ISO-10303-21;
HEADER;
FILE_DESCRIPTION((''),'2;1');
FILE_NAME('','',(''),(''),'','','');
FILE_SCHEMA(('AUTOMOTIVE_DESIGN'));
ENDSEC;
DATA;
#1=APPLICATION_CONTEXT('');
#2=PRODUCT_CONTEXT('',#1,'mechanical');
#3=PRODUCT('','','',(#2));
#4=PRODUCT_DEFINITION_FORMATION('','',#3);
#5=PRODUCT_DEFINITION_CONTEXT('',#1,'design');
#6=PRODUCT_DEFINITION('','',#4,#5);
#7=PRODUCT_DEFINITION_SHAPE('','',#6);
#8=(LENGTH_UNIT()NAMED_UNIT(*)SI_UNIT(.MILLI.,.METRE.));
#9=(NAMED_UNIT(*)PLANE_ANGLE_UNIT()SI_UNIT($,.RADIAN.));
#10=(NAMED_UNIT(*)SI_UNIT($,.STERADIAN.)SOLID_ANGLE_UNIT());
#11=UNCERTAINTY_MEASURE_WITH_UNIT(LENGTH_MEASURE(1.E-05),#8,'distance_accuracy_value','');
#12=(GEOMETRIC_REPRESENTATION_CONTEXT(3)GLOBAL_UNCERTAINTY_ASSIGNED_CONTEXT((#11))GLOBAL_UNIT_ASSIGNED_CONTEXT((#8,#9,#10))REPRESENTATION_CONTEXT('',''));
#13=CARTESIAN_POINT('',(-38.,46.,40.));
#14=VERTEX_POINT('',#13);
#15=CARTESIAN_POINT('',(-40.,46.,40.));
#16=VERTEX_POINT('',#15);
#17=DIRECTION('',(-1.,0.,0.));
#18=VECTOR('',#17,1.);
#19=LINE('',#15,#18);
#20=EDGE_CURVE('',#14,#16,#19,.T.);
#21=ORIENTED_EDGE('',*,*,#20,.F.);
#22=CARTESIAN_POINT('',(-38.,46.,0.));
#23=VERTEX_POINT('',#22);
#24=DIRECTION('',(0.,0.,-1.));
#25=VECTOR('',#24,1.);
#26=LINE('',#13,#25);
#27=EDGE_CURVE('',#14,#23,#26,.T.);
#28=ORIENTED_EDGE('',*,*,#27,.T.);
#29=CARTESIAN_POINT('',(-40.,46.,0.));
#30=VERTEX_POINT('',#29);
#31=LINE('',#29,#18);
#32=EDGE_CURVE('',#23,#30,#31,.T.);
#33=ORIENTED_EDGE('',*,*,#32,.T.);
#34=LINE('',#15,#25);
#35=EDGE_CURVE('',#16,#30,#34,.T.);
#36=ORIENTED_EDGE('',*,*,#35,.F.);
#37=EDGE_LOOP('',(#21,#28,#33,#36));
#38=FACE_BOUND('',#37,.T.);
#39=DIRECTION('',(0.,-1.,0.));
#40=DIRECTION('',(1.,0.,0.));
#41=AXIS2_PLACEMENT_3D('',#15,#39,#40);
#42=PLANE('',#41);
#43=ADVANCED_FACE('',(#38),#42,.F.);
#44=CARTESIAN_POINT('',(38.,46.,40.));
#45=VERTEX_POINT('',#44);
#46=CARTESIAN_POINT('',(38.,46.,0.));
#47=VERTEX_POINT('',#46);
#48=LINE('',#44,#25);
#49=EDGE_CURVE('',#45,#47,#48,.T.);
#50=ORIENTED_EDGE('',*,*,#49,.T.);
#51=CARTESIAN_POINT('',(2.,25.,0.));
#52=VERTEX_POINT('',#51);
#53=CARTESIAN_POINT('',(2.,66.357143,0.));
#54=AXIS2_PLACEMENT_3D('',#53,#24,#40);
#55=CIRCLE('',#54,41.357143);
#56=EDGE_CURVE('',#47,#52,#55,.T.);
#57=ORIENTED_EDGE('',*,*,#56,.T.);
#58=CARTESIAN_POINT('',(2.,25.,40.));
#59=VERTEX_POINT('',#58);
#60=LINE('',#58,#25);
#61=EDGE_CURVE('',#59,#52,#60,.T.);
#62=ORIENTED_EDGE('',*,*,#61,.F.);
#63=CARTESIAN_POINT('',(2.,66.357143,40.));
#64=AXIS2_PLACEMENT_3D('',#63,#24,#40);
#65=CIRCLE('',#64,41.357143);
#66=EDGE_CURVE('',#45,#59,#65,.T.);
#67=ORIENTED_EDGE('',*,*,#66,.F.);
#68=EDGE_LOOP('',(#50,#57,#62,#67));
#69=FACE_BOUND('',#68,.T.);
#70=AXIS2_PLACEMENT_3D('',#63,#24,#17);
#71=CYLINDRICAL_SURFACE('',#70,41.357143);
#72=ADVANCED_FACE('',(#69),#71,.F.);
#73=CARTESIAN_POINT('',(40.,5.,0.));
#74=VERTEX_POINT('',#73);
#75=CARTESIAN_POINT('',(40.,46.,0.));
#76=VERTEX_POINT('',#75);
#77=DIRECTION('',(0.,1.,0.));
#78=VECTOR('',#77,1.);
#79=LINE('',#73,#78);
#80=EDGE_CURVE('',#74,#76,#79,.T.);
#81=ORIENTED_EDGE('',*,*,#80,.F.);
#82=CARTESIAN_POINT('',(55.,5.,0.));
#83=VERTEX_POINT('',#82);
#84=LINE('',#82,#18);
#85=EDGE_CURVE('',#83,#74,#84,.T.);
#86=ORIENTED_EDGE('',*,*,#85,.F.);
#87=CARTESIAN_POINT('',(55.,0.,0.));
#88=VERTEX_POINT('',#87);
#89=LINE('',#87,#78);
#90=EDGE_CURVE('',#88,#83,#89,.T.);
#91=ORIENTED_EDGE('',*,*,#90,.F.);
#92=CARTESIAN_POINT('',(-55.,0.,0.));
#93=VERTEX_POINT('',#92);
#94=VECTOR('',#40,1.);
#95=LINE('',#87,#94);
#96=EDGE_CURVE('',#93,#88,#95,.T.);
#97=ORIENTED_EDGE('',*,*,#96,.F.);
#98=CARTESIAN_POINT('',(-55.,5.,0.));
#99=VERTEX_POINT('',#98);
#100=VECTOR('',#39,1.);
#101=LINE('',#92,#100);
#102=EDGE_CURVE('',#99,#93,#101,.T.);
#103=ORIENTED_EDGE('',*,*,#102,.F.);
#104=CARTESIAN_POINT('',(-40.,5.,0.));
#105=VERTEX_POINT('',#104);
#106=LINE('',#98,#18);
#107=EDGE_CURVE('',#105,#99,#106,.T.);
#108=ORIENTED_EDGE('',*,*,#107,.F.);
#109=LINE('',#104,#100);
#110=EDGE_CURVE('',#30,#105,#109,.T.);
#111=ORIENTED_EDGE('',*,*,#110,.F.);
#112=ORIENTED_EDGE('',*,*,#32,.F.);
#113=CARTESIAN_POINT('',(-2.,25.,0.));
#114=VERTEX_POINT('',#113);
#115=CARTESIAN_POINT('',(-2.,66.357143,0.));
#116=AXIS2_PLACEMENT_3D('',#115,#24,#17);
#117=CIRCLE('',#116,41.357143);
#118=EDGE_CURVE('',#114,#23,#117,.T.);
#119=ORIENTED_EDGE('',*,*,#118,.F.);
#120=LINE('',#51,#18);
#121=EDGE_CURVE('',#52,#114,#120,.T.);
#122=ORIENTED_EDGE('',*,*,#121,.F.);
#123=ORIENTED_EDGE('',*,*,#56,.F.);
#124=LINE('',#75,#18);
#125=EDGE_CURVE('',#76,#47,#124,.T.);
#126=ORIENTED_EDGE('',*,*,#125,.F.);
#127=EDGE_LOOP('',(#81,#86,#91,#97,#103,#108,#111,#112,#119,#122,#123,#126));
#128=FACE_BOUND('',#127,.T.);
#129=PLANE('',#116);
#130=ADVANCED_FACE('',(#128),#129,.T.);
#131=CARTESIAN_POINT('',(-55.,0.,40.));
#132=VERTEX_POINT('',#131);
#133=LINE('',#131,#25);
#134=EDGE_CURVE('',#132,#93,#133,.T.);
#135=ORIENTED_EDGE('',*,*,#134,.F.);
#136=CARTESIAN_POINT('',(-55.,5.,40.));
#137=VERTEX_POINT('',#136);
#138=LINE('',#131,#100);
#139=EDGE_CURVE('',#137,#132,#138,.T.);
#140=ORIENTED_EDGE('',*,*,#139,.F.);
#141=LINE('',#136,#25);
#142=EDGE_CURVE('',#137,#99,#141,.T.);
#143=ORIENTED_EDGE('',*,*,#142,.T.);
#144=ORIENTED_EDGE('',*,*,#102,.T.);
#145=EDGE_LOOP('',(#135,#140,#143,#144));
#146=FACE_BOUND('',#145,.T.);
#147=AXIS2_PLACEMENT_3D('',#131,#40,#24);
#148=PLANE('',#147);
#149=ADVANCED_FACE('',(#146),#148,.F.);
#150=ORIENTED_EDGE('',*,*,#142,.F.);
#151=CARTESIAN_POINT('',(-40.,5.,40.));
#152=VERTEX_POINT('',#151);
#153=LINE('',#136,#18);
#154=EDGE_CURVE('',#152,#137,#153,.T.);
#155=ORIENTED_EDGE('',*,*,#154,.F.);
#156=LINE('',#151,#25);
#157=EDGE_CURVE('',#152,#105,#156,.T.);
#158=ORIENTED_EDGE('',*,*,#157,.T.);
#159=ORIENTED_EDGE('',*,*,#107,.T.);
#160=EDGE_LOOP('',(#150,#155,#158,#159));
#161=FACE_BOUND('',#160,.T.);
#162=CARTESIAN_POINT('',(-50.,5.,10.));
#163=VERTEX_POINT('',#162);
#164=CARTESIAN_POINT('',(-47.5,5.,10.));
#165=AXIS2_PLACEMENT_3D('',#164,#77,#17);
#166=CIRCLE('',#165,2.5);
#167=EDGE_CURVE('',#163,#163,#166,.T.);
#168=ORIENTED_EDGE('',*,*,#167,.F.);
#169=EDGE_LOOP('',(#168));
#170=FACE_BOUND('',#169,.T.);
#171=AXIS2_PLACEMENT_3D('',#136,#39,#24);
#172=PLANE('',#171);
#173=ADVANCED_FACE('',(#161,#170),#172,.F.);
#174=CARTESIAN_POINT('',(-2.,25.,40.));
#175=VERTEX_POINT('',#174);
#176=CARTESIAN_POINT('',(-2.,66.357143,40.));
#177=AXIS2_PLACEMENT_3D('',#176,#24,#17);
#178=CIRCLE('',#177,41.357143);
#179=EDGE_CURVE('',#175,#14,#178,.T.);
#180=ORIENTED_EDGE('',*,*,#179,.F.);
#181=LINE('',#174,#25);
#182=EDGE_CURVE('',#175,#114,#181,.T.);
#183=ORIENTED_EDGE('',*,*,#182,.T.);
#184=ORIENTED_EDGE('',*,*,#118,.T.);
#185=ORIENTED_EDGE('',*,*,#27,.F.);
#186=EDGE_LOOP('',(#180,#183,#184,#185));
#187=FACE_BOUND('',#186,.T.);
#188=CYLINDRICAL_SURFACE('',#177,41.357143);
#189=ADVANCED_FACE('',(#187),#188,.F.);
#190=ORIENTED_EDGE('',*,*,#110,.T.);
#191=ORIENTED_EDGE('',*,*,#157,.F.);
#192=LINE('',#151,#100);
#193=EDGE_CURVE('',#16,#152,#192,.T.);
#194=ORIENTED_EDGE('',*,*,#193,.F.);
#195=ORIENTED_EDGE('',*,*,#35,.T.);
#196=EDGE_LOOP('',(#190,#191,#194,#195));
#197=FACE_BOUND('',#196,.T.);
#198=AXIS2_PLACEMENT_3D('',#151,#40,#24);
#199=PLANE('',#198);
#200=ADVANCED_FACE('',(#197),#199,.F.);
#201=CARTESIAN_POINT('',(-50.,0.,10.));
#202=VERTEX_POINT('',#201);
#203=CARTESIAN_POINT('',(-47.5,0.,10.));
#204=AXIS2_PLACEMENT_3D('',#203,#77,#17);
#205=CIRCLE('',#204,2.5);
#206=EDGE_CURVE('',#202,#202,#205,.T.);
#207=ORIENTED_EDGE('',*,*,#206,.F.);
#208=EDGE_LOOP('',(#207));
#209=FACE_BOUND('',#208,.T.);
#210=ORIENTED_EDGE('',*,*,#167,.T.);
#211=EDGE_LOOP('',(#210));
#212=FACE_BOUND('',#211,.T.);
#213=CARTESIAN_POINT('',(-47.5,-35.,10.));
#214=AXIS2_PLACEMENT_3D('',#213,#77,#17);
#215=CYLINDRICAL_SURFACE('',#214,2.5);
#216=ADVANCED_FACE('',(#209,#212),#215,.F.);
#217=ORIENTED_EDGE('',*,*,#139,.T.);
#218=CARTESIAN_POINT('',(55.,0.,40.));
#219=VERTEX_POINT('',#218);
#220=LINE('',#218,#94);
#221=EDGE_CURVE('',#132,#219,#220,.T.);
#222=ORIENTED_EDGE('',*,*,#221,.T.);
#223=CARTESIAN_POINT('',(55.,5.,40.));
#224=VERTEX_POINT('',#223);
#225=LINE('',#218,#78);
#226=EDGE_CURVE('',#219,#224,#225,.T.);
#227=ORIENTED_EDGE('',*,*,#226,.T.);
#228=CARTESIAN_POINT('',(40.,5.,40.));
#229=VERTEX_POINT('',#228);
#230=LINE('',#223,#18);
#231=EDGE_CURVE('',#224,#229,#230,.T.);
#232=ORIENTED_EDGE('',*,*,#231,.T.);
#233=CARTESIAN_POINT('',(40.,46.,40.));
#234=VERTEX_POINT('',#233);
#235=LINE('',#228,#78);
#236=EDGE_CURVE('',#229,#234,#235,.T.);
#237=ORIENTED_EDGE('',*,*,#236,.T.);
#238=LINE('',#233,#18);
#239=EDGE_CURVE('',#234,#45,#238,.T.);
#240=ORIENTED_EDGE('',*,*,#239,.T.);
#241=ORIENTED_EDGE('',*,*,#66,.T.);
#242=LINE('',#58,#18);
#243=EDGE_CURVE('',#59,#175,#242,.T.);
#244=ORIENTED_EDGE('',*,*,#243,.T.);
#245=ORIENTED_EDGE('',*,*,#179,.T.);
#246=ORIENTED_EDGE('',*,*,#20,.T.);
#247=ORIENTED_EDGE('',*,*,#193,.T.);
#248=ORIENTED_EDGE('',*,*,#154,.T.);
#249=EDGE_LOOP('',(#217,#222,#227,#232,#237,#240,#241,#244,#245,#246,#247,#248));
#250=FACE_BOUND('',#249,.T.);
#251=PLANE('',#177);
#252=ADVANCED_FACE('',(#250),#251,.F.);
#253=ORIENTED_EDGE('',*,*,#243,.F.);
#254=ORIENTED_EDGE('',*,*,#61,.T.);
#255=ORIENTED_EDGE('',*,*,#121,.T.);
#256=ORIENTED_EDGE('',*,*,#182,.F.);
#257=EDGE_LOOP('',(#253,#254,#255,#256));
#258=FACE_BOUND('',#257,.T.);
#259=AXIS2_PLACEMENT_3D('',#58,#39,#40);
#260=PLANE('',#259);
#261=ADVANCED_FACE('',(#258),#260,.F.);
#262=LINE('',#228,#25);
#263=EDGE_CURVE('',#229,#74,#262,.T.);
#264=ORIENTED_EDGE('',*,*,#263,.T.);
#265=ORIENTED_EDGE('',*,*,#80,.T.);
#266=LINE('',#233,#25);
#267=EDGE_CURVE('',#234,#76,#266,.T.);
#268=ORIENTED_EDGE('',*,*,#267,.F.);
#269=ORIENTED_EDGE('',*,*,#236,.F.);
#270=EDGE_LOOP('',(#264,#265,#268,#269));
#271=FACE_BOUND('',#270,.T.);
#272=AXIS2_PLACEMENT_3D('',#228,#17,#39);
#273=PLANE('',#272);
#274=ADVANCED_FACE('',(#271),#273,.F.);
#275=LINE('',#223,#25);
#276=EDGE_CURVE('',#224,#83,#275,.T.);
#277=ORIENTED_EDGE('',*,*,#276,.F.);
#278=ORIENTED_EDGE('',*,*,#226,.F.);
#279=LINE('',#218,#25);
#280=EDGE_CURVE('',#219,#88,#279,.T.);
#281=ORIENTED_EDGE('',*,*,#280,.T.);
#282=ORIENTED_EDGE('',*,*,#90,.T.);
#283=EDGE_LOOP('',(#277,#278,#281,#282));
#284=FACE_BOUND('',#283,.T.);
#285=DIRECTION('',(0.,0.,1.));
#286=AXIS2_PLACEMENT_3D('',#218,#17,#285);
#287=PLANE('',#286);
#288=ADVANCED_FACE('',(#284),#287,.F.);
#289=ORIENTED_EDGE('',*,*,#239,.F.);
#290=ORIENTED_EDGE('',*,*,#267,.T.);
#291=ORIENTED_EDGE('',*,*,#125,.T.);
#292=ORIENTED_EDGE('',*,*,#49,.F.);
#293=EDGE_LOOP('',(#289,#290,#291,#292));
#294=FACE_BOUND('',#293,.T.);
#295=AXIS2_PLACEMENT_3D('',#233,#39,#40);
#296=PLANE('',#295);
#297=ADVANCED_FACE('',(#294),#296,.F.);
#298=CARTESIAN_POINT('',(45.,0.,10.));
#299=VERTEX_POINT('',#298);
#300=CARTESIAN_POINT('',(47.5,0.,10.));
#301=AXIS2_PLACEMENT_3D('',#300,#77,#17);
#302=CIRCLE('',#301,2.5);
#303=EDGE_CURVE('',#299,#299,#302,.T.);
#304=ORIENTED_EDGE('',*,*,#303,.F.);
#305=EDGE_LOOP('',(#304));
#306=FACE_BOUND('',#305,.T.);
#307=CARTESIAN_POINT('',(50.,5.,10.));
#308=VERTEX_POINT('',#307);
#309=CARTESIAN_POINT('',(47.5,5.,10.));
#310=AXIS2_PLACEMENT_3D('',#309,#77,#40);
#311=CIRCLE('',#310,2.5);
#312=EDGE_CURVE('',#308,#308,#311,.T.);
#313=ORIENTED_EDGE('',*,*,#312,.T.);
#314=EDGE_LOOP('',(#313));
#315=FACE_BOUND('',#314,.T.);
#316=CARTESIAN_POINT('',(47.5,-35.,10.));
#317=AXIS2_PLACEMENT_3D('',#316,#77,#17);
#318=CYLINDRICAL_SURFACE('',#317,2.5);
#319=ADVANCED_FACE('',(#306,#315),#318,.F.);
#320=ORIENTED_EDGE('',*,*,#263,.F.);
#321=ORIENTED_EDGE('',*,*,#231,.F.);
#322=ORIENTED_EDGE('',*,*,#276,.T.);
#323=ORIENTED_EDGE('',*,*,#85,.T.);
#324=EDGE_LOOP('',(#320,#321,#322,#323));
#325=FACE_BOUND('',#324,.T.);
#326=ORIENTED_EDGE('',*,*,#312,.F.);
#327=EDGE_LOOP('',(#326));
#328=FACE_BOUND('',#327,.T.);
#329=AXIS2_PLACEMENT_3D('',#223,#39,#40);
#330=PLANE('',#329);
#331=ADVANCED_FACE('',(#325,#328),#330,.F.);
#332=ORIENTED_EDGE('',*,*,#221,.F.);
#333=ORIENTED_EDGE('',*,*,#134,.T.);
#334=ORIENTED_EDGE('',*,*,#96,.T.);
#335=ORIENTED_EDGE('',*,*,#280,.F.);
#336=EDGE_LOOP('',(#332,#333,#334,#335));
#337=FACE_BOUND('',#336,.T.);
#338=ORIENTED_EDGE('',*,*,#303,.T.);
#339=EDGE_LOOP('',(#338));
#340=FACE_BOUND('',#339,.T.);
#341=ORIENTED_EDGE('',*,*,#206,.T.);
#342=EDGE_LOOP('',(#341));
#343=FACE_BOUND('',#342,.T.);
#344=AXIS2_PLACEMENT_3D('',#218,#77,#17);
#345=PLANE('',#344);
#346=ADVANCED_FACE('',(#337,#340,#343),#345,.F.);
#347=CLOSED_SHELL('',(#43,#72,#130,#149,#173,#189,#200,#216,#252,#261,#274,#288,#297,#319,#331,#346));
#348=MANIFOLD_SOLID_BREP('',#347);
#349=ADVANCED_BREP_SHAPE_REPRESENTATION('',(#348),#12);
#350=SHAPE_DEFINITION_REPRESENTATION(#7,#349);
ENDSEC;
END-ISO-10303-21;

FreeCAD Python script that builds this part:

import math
import FreeCAD as App
import Part
import Sketcher
Q = App.Units.Quantity

doc = App.newDocument("Part")
body = doc.addObject("PartDesign::Body", "Body")

sketch1 = body.newObject("Sketcher::SketchObject", "Sketch")
sketch1.AttachmentSupport = (doc.getObject("XY_Plane"), [""])
sketch1.MapMode = "FlatFace"
sketch1.addGeometry([
    Part.LineSegment(App.Vector(-55, 0, 0), App.Vector(55, 0, 0)),
    Part.LineSegment(App.Vector(55, 0, 0), App.Vector(55, 5, 0)),
    Part.LineSegment(App.Vector(55, 5, 0), App.Vector(40, 5, 0)),
    Part.LineSegment(App.Vector(40, 5, 0), App.Vector(40, 46, 0)),
    Part.LineSegment(App.Vector(40, 46, 0), App.Vector(38, 46, 0)),
    Part.ArcOfCircle(Part.Circle(App.Vector(2, 66.4, 0), App.Vector(0, 0, 1), 41.4), math.radians(-90), math.radians(-29)),
    Part.LineSegment(App.Vector(2, 25, 0), App.Vector(-2, 25, 0)),
    Part.ArcOfCircle(Part.Circle(App.Vector(-2, 66.4, 0), App.Vector(0, 0, 1), 41.4), math.radians(-151), math.radians(-90)),
    Part.LineSegment(App.Vector(-38, 46, 0), App.Vector(-40, 46, 0)),
    Part.LineSegment(App.Vector(-40, 46, 0), App.Vector(-40, 5, 0)),
    Part.LineSegment(App.Vector(-40, 5, 0), App.Vector(-55, 5, 0)),
    Part.LineSegment(App.Vector(-55, 5, 0), App.Vector(-55, 0, 0)),
], False)
sketch1.addConstraint([
    Sketcher.Constraint("Coincident", 0, 2, 1, 1),
    Sketcher.Constraint("Coincident", 1, 2, 2, 1),
    Sketcher.Constraint("Coincident", 2, 2, 3, 1),
    Sketcher.Constraint("Coincident", 3, 2, 4, 1),
    Sketcher.Constraint("Coincident", 4, 2, 5, 2),
    Sketcher.Constraint("Tangent", 5, 1, 6, 1),
    Sketcher.Constraint("Tangent", 6, 2, 7, 2),
    Sketcher.Constraint("Coincident", 7, 1, 8, 1),
    Sketcher.Constraint("Coincident", 8, 2, 9, 1),
    Sketcher.Constraint("Coincident", 9, 2, 10, 1),
    Sketcher.Constraint("Coincident", 10, 2, 11, 1),
    Sketcher.Constraint("Coincident", 11, 2, 0, 1),
    Sketcher.Constraint("Horizontal", 0),
    Sketcher.Constraint("Vertical", 1),
    Sketcher.Constraint("Horizontal", 2),
    Sketcher.Constraint("Vertical", 3),
    Sketcher.Constraint("Horizontal", 4),
    Sketcher.Constraint("Horizontal", 6),
    Sketcher.Constraint("Horizontal", 8),
    Sketcher.Constraint("Vertical", 9),
    Sketcher.Constraint("Horizontal", 10),
    Sketcher.Constraint("Vertical", 11),
    Sketcher.Constraint("Equal", 5, 7),
    Sketcher.Constraint("Symmetric", 0, 2, 11, 2, -1, 1),
    Sketcher.Constraint("Symmetric", 4, 2, 7, 1, -2),
    Sketcher.Constraint("Symmetric", 2, 2, 9, 2, -2),
    Sketcher.Constraint("DistanceX", 0, 1, 0, 2, Q("110 mm")),
    Sketcher.Constraint("DistanceX", 2, 2, 2, 1, Q("15 mm")),
    Sketcher.Constraint("DistanceX", 4, 2, 4, 1, Q("2 mm")),
    Sketcher.Constraint("DistanceX", 6, 2, 6, 1, Q("4 mm")),
    Sketcher.Constraint("DistanceY", 1, 1, 1, 2, Q("5 mm")),
    Sketcher.Constraint("DistanceY", 3, 1, 3, 2, Q("41 mm")),
    Sketcher.Constraint("DistanceY", -1, 1, 5, 1, Q("25 mm")),
])
pad1 = body.newObject("PartDesign::Pad", "Pad")
pad1.Profile = sketch1
pad1.Length = 40

sketch2 = body.newObject("Sketcher::SketchObject", "Sketch001")
sketch2.AttachmentSupport = (doc.getObject("XZ_Plane"), [""])
sketch2.MapMode = "FlatFace"
sketch2.AttachmentOffset = App.Placement(App.Vector(0, 0, -5), App.Rotation())
sketch2.addGeometry([
    Part.Circle(App.Vector(-47.5, 10, 0), App.Vector(0, 0, 1), 2.5),
    Part.Circle(App.Vector(47.5, 10, 0), App.Vector(0, 0, 1), 2.5),
], False)
sketch2.addConstraint([
    Sketcher.Constraint("Equal", 0, 1),
    Sketcher.Constraint("Symmetric", 0, 3, 1, 3, -2),
    Sketcher.Constraint("Diameter", 0, Q("5 mm")),
    Sketcher.Constraint("DistanceY", -1, 1, 0, 3, Q("10 mm")),
    Sketcher.Constraint("DistanceX", 0, 3, 1, 3, Q("95 mm")),
])
pocket1 = body.newObject("PartDesign::Pocket", "Pocket")
pocket1.Profile = sketch2
pocket1.Length = 40
pocket1.Reversed = True

doc.recompute()
